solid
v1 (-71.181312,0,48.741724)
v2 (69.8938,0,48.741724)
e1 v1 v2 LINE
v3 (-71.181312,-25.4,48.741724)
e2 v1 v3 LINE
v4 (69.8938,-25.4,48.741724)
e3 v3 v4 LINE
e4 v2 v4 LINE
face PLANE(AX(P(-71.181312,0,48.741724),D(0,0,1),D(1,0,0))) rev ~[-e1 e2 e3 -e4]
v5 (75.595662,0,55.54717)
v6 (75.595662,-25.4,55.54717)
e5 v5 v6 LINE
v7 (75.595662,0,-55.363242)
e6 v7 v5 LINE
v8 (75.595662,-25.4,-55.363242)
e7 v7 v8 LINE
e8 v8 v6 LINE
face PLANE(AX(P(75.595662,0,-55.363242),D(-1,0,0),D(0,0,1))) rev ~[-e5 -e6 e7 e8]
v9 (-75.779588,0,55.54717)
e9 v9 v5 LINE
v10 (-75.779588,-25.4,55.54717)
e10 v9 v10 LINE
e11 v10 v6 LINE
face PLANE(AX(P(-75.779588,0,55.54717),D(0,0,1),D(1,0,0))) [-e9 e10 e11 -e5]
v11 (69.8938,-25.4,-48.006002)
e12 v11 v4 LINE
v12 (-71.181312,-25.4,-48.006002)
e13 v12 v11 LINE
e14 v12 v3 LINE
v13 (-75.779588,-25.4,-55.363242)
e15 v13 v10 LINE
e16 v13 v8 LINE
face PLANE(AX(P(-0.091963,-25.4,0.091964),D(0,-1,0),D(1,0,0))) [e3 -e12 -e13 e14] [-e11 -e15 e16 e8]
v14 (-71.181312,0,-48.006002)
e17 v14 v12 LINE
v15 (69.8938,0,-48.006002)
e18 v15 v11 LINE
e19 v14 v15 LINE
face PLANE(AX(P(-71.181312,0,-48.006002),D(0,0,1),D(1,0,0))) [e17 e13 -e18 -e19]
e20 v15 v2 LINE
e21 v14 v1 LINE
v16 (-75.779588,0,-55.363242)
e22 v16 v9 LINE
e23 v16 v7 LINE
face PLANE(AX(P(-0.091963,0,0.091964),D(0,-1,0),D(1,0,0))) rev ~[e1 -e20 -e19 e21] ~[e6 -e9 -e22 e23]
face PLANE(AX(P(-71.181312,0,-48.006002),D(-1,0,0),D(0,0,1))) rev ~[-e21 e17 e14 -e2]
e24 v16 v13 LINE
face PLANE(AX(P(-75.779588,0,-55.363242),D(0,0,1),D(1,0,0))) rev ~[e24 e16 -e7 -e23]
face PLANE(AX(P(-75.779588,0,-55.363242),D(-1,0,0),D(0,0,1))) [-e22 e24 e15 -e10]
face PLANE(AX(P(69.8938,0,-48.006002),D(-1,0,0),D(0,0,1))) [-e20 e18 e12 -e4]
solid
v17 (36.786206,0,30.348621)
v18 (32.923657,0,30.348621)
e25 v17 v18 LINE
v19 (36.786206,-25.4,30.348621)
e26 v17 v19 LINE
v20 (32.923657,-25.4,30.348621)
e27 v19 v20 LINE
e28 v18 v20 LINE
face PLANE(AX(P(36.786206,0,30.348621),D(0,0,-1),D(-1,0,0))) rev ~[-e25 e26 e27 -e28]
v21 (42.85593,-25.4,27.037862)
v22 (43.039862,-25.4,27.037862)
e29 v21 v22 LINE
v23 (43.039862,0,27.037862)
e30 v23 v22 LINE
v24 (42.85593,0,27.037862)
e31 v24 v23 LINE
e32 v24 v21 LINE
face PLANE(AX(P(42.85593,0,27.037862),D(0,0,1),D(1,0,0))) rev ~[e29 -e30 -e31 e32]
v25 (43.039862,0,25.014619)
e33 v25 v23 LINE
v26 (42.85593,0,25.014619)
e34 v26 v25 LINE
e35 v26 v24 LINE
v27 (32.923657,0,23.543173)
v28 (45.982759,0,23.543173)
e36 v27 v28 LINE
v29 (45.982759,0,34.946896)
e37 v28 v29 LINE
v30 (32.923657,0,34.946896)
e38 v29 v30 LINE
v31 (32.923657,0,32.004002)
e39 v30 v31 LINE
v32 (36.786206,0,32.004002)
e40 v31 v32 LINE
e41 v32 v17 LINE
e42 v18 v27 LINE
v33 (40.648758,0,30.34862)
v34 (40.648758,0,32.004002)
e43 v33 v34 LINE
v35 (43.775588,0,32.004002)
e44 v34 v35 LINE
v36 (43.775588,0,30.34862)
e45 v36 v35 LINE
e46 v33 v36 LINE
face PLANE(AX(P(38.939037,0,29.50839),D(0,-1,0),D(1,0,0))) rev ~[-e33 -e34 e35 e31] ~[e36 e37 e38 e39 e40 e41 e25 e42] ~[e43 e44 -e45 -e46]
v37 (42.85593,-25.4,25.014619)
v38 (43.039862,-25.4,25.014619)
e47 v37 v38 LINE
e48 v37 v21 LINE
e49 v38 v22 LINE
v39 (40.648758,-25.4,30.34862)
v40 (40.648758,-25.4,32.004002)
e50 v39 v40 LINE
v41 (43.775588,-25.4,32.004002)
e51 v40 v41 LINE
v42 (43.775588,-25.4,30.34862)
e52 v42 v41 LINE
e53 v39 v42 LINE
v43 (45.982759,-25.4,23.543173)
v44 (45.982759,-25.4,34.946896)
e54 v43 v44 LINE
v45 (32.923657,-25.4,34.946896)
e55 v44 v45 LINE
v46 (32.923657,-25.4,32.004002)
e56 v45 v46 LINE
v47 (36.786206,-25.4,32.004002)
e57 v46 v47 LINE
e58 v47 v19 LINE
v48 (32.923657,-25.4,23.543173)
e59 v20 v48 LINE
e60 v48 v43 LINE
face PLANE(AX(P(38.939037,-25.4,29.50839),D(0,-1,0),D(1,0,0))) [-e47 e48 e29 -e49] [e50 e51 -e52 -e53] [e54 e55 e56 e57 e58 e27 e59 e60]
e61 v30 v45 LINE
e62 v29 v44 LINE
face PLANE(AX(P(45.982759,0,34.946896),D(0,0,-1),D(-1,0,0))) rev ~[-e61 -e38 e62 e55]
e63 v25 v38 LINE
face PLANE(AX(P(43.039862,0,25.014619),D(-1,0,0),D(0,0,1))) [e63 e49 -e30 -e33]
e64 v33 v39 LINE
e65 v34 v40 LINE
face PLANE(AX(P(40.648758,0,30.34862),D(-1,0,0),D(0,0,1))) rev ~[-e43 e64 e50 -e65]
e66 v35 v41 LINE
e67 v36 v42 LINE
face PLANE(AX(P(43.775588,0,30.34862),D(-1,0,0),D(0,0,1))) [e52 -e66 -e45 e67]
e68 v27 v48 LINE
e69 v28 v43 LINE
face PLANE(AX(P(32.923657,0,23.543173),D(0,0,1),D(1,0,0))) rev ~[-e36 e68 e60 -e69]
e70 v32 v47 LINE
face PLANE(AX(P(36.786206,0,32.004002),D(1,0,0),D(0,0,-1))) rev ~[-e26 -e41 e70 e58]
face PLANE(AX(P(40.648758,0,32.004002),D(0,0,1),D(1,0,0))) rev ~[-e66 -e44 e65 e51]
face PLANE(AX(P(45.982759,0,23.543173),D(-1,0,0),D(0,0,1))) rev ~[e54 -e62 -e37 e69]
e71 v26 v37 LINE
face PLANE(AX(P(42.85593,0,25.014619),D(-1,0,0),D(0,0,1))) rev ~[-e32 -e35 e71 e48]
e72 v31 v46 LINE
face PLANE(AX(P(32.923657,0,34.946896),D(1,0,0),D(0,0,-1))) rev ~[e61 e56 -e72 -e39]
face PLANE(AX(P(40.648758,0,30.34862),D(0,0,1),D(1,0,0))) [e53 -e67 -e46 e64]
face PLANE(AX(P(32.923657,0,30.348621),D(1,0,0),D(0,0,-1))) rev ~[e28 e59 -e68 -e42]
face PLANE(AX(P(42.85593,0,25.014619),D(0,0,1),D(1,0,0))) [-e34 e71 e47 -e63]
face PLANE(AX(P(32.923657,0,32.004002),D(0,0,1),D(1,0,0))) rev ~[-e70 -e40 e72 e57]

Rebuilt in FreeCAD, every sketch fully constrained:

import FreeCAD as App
import Part
import Sketcher
from FreeCAD import Vector
Q = App.Units.Quantity

doc = App.newDocument("Part")
params = doc.addObject("Spreadsheet::Sheet", "Params")
for row, (alias, value) in enumerate([
    ("pad1_length", "1 in"),
    ("pad2_length", "1 in"),
], start=1):
    params.set(f"A{row}", alias)
    params.set(f"B{row}", "=" + value)
    params.setAlias(f"B{row}", alias)

body = doc.addObject("PartDesign::Body", "Body")

sketch1 = body.newObject("Sketcher::SketchObject", "Sketch")
sketch1.AttachmentSupport = (doc.getObject("XZ_Plane"), [""])
sketch1.MapMode = "FlatFace"
sketch1.addGeometry([
    Part.LineSegment(Vector(-76, 56, 0), Vector(-76, -55, 0)),
    Part.LineSegment(Vector(-76, -55, 0), Vector(76, -55, 0)),
    Part.LineSegment(Vector(76, -55, 0), Vector(76, 56, 0)),
    Part.LineSegment(Vector(76, 56, 0), Vector(-76, 56, 0)),
    Part.LineSegment(Vector(70, -48, 0), Vector(-71, -48, 0)),
    Part.LineSegment(Vector(-71, -48, 0), Vector(-71, 49, 0)),
    Part.LineSegment(Vector(-71, 49, 0), Vector(70, 49, 0)),
    Part.LineSegment(Vector(70, 49, 0), Vector(70, -48, 0)),
], False)
sketch1.addConstraint([
    Sketcher.Constraint("Coincident", 0, 2, 1, 1),
    Sketcher.Constraint("Coincident", 1, 2, 2, 1),
    Sketcher.Constraint("Coincident", 2, 2, 3, 1),
    Sketcher.Constraint("Coincident", 3, 2, 0, 1),
    Sketcher.Constraint("Coincident", 4, 2, 5, 1),
    Sketcher.Constraint("Coincident", 5, 2, 6, 1),
    Sketcher.Constraint("Coincident", 6, 2, 7, 1),
    Sketcher.Constraint("Coincident", 7, 2, 4, 1),
    Sketcher.Constraint("Vertical", 0),
    Sketcher.Constraint("Horizontal", 1),
    Sketcher.Constraint("Vertical", 2),
    Sketcher.Constraint("Horizontal", 3),
    Sketcher.Constraint("Horizontal", 4),
    Sketcher.Constraint("Vertical", 5),
    Sketcher.Constraint("Horizontal", 6),
    Sketcher.Constraint("Vertical", 7),
    Sketcher.Constraint("DistanceY", 4, 2, -1, 1, Q("1.8900001 in")),
    Sketcher.Constraint("DistanceX", 1, 1, 1, 2, Q("151.375249 mm")),
    Sketcher.Constraint("DistanceX", 4, 2, 4, 1, Q("141.075112 mm")),
    Sketcher.Constraint("DistanceX", -1, 1, 6, 2, Q("69.8938 mm")),
    Sketcher.Constraint("DistanceY", 0, 2, 0, 1, Q("110.910412 mm")),
    Sketcher.Constraint("DistanceY", 5, 1, 5, 2, Q("96.747726 mm")),
    Sketcher.Constraint("DistanceX", -1, 1, 1, 2, Q("75.595662 mm")),
    Sketcher.Constraint("DistanceY", -1, 1, 2, 2, Q("55.54717 mm")),
])
pad1 = body.newObject("PartDesign::Pad", "Pad")
pad1.Profile = sketch1
pad1.setExpression("Length", "Params.pad1_length")
body2 = doc.addObject("PartDesign::Body", "Body001")

sketch2 = body2.newObject("Sketcher::SketchObject", "Sketch001")
sketch2.AttachmentSupport = (doc.getObject("XZ_Plane001"), [""])
sketch2.MapMode = "FlatFace"
sketch2.addGeometry([
    Part.LineSegment(Vector(32.92, 23.54, 0), Vector(45.98, 23.54, 0)),
    Part.LineSegment(Vector(45.98, 23.54, 0), Vector(45.98, 34.95, 0)),
    Part.LineSegment(Vector(45.98, 34.95, 0), Vector(32.92, 34.95, 0)),
    Part.LineSegment(Vector(32.92, 34.95, 0), Vector(32.92, 32, 0)),
    Part.LineSegment(Vector(32.92, 32, 0), Vector(36.79, 32, 0)),
    Part.LineSegment(Vector(36.79, 32, 0), Vector(36.79, 30.35, 0)),
    Part.LineSegment(Vector(36.79, 30.35, 0), Vector(32.92, 30.35, 0)),
    Part.LineSegment(Vector(32.92, 30.35, 0), Vector(32.92, 23.54, 0)),
    Part.LineSegment(Vector(43.04, 25.01, 0), Vector(42.86, 25.01, 0)),
    Part.LineSegment(Vector(42.86, 25.01, 0), Vector(42.86, 27.04, 0)),
    Part.LineSegment(Vector(42.86, 27.04, 0), Vector(43.04, 27.04, 0)),
    Part.LineSegment(Vector(43.04, 27.04, 0), Vector(43.04, 25.01, 0)),
    Part.LineSegment(Vector(43.78, 30.35, 0), Vector(40.65, 30.35, 0)),
    Part.LineSegment(Vector(40.65, 30.35, 0), Vector(40.65, 32, 0)),
    Part.LineSegment(Vector(40.65, 32, 0), Vector(43.78, 32, 0)),
    Part.LineSegment(Vector(43.78, 32, 0), Vector(43.78, 30.35, 0)),
], False)
sketch2.addConstraint([
    Sketcher.Constraint("Coincident", 0, 2, 1, 1),
    Sketcher.Constraint("Coincident", 1, 2, 2, 1),
    Sketcher.Constraint("Coincident", 2, 2, 3, 1),
    Sketcher.Constraint("Coincident", 3, 2, 4, 1),
    Sketcher.Constraint("Coincident", 4, 2, 5, 1),
    Sketcher.Constraint("Coincident", 5, 2, 6, 1),
    Sketcher.Constraint("Coincident", 6, 2, 7, 1),
    Sketcher.Constraint("Coincident", 7, 2, 0, 1),
    Sketcher.Constraint("Coincident", 8, 2, 9, 1),
    Sketcher.Constraint("Coincident", 9, 2, 10, 1),
    Sketcher.Constraint("Coincident", 10, 2, 11, 1),
    Sketcher.Constraint("Coincident", 11, 2, 8, 1),
    Sketcher.Constraint("Coincident", 12, 2, 13, 1),
    Sketcher.Constraint("Coincident", 13, 2, 14, 1),
    Sketcher.Constraint("Coincident", 14, 2, 15, 1),
    Sketcher.Constraint("Coincident", 15, 2, 12, 1),
    Sketcher.Constraint("Horizontal", 0),
    Sketcher.Constraint("Vertical", 1),
    Sketcher.Constraint("Horizontal", 2),
    Sketcher.Constraint("Vertical", 3),
    Sketcher.Constraint("Horizontal", 4),
    Sketcher.Constraint("Vertical", 5),
    Sketcher.Constraint("Horizontal", 6),
    Sketcher.Constraint("Vertical", 7),
    Sketcher.Constraint("Horizontal", 8),
    Sketcher.Constraint("Vertical", 9),
    Sketcher.Constraint("Horizontal", 10),
    Sketcher.Constraint("Vertical", 11),
    Sketcher.Constraint("Horizontal", 12),
    Sketcher.Constraint("Vertical", 13),
    Sketcher.Constraint("Horizontal", 14),
    Sketcher.Constraint("Vertical", 15),
    Sketcher.Constraint("Horizontal", 6, 2, 12, 2),
    Sketcher.Constraint("Horizontal", 4, 2, 13, 2),
    Sketcher.Constraint("Vertical", 3, 2, 6, 2),
    Sketcher.Constraint("DistanceY", -1, 1, 3, 2, Q("1.2600001 in")),
    Sketcher.Constraint("DistanceY", 8, 2, 5, 2, Q("0.2100001 in")),
    Sketcher.Constraint("DistanceX", 4, 1, 4, 2, Q("3.862549 mm")),
    Sketcher.Constraint("DistanceX", 8, 2, 8, 1, Q("0.183932 mm")),
    Sketcher.Constraint("DistanceX", 12, 2, 12, 1, Q("3.12683 mm")),
    Sketcher.Constraint("DistanceY", 5, 2, 5, 1, Q("1.655381 mm")),
    Sketcher.Constraint("DistanceY", 7, 2, 7, 1, Q("6.805448 mm")),
    Sketcher.Constraint("DistanceX", 0, 1, 0, 2, Q("13.059102 mm")),
    Sketcher.Constraint("DistanceY", 1, 1, 1, 2, Q("11.403723 mm")),
    Sketcher.Constraint("DistanceY", 9, 1, 9, 2, Q("2.023243 mm")),
    Sketcher.Constraint("DistanceX", -1, 1, 0, 2, Q("45.982759 mm")),
    Sketcher.Constraint("DistanceX", -1, 1, 8, 2, Q("42.85593 mm")),
    Sketcher.Constraint("DistanceX", 12, 2, 9, 2, Q("2.207172 mm")),
])
pad2 = body2.newObject("PartDesign::Pad", "Pad001")
pad2.Profile = sketch2
pad2.setExpression("Length", "Params.pad2_length")

doc.recompute()
